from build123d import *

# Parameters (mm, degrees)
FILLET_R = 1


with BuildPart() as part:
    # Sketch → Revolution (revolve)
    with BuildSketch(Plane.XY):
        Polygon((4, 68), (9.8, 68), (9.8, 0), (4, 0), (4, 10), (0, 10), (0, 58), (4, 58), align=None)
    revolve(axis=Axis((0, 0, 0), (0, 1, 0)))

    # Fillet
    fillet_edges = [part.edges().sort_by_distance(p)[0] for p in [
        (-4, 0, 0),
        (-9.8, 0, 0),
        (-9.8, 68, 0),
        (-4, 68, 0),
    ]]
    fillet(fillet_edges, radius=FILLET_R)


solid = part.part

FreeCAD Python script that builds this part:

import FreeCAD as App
import Part
import Sketcher

V = App.Vector


def edges_at(feature, points):
    """Names of the edges that pass closest to the given points."""
    edges = feature.Shape.Edges
    near = lambda p: min(range(len(edges)), key=lambda i: edges[i].distToShape(Part.Vertex(*p))[0])
    return sorted({f"Edge{near(p) + 1}" for p in points})


def add_polygon(sketch, points):
    """Adds a closed chain of lines whose ends are joined by coincident constraints."""
    first, n = sketch.GeometryCount, len(points)
    for a, b in zip(points, points[1:] + points[:1]):
        sketch.addGeometry(Part.LineSegment(App.Vector(*a, 0), App.Vector(*b, 0)), False)
    for i in range(n):
        sketch.addConstraint(Sketcher.Constraint("Coincident", first + i, 2, first + (i + 1) % n, 1))

doc = App.newDocument("Part")
body = doc.addObject("PartDesign::Body", "Body")

# Sketch on XY plane
sketch1 = doc.addObject("Sketcher::SketchObject", "Sketch")
body.addObject(sketch1)
sketch1.AttachmentSupport = (doc.XY_Plane, [""])
sketch1.MapMode = "FlatFace"
add_polygon(sketch1, [(9.8, 68), (4, 68), (4, 58), (0, 58), (0, 10), (4, 10), (4, 0), (9.8, 0)])  # lines 0-7
sketch1.addConstraint(Sketcher.Constraint("Horizontal", 0))
sketch1.addConstraint(Sketcher.Constraint("Vertical", 1))
sketch1.addConstraint(Sketcher.Constraint("Horizontal", 2))
sketch1.addConstraint(Sketcher.Constraint("Vertical", 3))
sketch1.addConstraint(Sketcher.Constraint("Horizontal", 4))
sketch1.addConstraint(Sketcher.Constraint("Vertical", 5))
sketch1.addConstraint(Sketcher.Constraint("Horizontal", 6))
sketch1.addConstraint(Sketcher.Constraint("Vertical", 7))
sketch1.addConstraint(Sketcher.Constraint("PointOnObject", 2, 2, -2))
sketch1.addConstraint(Sketcher.Constraint("PointOnObject", 5, 2, -1))
sketch1.addConstraint(Sketcher.Constraint("Vertical", 1, 2, 4, 2))
sketch1.addConstraint(Sketcher.Constraint("Equal", 1, 5))
sketch1.addConstraint(Sketcher.Constraint("DistanceX", 2, 2, 2, 1, 4.0))
sketch1.addConstraint(Sketcher.Constraint("DistanceY", 1, 2, 1, 1, 10.0))
sketch1.addConstraint(Sketcher.Constraint("DistanceY", 3, 2, 3, 1, 48.0))
sketch1.addConstraint(Sketcher.Constraint("DistanceX", 0, 2, 0, 1, 5.8))
revolution = doc.addObject("PartDesign::Revolution", "Revolution")
body.addObject(revolution)
revolution.Profile = sketch1
revolution.ReferenceAxis = (sketch1, ["V_Axis"])
revolution.Angle = 360
doc.recompute()

fillet = doc.addObject("PartDesign::Fillet", "Fillet")
body.addObject(fillet)
fillet.Base = (revolution, edges_at(revolution, [
    (-4, 0, 0),
    (-9.8, 0, 0),
    (-9.8, 68, 0),
    (-4, 68, 0),
]))
fillet.Radius = 1

doc.recompute()
